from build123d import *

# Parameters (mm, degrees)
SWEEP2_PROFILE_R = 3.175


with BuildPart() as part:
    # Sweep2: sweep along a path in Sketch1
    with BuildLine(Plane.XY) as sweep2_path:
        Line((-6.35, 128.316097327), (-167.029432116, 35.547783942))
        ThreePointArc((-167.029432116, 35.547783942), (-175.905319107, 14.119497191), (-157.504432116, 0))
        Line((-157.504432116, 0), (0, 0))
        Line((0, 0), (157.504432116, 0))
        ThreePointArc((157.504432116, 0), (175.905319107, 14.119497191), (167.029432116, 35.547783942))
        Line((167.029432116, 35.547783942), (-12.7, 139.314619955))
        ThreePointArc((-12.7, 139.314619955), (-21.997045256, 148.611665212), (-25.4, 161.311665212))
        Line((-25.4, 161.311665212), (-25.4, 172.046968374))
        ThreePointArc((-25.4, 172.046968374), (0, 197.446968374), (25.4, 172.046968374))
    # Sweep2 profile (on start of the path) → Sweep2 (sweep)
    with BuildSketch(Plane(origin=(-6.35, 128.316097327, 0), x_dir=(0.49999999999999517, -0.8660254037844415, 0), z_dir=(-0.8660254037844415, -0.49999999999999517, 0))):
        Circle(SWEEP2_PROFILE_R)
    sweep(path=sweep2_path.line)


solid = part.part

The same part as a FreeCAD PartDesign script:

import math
import FreeCAD as App
import Part
import Sketcher

V = App.Vector
Q = App.Units.Quantity

doc = App.newDocument("Part")
body = doc.addObject("PartDesign::Body", "Body")

sketch1 = body.newObject("Sketcher::SketchObject", "Sketch")
sketch1.Placement = App.Placement(V(-6.35, 128.316097, 0), App.Rotation(V(0.5, -0.866025404, 0), V(0, 0, 1), V(-0.866025404, -0.5, 0), "ZXY"))
sketch1.addGeometry(Part.Circle(V(0, 0, 0), V(0, 0, 1), 3.2), False)
sketch1.addConstraint(Sketcher.Constraint("Coincident", 0, 3, -1, 1))
sketch1.addConstraint(Sketcher.Constraint("Diameter", 0, Q("0.25 in")))

sketch2 = body.newObject("Sketcher::SketchObject", "Sketch001")
sketch2.AttachmentSupport = (doc.getObject("XY_Plane"), [""])
sketch2.MapMode = "FlatFace"
sketch2.addGeometry(Part.LineSegment(V(-6, 128, 0), V(-167, 36, 0)), False)
sketch2.addGeometry(Part.ArcOfCircle(Part.Circle(V(-158, 19, 0), V(0, 0, 1), 19), math.radians(120), math.radians(270)), False)
sketch2.addGeometry(Part.LineSegment(V(-158, 0, 0), V(158, 0, 0)), False)
sketch2.addGeometry(Part.ArcOfCircle(Part.Circle(V(158, 19, 0), V(0, 0, 1), 19), math.radians(-90), math.radians(60)), False)
sketch2.addGeometry(Part.LineSegment(V(167, 36, 0), V(-13, 139, 0)), False)
sketch2.addGeometry(Part.ArcOfCircle(Part.Circle(V(0, 161, 0), V(0, 0, 1), 25), math.radians(-180), math.radians(-120)), False)
sketch2.addGeometry(Part.LineSegment(V(-25, 161, 0), V(-25, 172, 0)), False)
sketch2.addGeometry(Part.ArcOfCircle(Part.Circle(V(0, 172, 0), V(0, 0, 1), 25), math.radians(0), math.radians(180)), False)
sketch2.addConstraint(Sketcher.Constraint("Tangent", 0, 2, 1, 1))
sketch2.addConstraint(Sketcher.Constraint("Tangent", 1, 2, 2, 1))
sketch2.addConstraint(Sketcher.Constraint("Tangent", 2, 2, 3, 1))
sketch2.addConstraint(Sketcher.Constraint("Tangent", 3, 2, 4, 1))
sketch2.addConstraint(Sketcher.Constraint("Tangent", 4, 2, 5, 2))
sketch2.addConstraint(Sketcher.Constraint("Tangent", 5, 1, 6, 1))
sketch2.addConstraint(Sketcher.Constraint("Tangent", 6, 2, 7, 2))
sketch2.addConstraint(Sketcher.Constraint("Horizontal", 2))
sketch2.addConstraint(Sketcher.Constraint("Vertical", 6))
sketch2.addConstraint(Sketcher.Constraint("Equal", 1, 3))
sketch2.addConstraint(Sketcher.Constraint("Equal", 5, 7))
sketch2.addConstraint(Sketcher.Constraint("Symmetric", 1, 2, 2, 2, -1, 1))
sketch2.addConstraint(Sketcher.Constraint("Symmetric", 6, 2, 7, 1, -2))
sketch2.addConstraint(Sketcher.Constraint("Horizontal", 0, 2, 3, 2))
sketch2.addConstraint(Sketcher.Constraint("Radius", 5, Q("1 in")))
sketch2.addConstraint(Sketcher.Constraint("Radius", 1, Q("0.75 in")))
sketch2.addConstraint(Sketcher.Constraint("Angle", 0, Q("-150 deg")))
sketch2.addConstraint(Sketcher.Constraint("DistanceX", 0, 1, -1, 1, Q("0.25 in")))
sketch2.addConstraint(Sketcher.Constraint("DistanceX", 2, 1, 2, 2, Q("315.008864 mm")))
sketch2.addConstraint(Sketcher.Constraint("DistanceY", 6, 1, 6, 2, Q("10.735303 mm")))
doc.recompute()

additivepipe = body.newObject("PartDesign::AdditivePipe", "AdditivePipe")
additivepipe.Profile = sketch1
additivepipe.Spine = (sketch2, ["Edge1", "Edge2", "Edge3", "Edge4", "Edge5", "Edge6", "Edge7", "Edge8"])

doc.recompute()
